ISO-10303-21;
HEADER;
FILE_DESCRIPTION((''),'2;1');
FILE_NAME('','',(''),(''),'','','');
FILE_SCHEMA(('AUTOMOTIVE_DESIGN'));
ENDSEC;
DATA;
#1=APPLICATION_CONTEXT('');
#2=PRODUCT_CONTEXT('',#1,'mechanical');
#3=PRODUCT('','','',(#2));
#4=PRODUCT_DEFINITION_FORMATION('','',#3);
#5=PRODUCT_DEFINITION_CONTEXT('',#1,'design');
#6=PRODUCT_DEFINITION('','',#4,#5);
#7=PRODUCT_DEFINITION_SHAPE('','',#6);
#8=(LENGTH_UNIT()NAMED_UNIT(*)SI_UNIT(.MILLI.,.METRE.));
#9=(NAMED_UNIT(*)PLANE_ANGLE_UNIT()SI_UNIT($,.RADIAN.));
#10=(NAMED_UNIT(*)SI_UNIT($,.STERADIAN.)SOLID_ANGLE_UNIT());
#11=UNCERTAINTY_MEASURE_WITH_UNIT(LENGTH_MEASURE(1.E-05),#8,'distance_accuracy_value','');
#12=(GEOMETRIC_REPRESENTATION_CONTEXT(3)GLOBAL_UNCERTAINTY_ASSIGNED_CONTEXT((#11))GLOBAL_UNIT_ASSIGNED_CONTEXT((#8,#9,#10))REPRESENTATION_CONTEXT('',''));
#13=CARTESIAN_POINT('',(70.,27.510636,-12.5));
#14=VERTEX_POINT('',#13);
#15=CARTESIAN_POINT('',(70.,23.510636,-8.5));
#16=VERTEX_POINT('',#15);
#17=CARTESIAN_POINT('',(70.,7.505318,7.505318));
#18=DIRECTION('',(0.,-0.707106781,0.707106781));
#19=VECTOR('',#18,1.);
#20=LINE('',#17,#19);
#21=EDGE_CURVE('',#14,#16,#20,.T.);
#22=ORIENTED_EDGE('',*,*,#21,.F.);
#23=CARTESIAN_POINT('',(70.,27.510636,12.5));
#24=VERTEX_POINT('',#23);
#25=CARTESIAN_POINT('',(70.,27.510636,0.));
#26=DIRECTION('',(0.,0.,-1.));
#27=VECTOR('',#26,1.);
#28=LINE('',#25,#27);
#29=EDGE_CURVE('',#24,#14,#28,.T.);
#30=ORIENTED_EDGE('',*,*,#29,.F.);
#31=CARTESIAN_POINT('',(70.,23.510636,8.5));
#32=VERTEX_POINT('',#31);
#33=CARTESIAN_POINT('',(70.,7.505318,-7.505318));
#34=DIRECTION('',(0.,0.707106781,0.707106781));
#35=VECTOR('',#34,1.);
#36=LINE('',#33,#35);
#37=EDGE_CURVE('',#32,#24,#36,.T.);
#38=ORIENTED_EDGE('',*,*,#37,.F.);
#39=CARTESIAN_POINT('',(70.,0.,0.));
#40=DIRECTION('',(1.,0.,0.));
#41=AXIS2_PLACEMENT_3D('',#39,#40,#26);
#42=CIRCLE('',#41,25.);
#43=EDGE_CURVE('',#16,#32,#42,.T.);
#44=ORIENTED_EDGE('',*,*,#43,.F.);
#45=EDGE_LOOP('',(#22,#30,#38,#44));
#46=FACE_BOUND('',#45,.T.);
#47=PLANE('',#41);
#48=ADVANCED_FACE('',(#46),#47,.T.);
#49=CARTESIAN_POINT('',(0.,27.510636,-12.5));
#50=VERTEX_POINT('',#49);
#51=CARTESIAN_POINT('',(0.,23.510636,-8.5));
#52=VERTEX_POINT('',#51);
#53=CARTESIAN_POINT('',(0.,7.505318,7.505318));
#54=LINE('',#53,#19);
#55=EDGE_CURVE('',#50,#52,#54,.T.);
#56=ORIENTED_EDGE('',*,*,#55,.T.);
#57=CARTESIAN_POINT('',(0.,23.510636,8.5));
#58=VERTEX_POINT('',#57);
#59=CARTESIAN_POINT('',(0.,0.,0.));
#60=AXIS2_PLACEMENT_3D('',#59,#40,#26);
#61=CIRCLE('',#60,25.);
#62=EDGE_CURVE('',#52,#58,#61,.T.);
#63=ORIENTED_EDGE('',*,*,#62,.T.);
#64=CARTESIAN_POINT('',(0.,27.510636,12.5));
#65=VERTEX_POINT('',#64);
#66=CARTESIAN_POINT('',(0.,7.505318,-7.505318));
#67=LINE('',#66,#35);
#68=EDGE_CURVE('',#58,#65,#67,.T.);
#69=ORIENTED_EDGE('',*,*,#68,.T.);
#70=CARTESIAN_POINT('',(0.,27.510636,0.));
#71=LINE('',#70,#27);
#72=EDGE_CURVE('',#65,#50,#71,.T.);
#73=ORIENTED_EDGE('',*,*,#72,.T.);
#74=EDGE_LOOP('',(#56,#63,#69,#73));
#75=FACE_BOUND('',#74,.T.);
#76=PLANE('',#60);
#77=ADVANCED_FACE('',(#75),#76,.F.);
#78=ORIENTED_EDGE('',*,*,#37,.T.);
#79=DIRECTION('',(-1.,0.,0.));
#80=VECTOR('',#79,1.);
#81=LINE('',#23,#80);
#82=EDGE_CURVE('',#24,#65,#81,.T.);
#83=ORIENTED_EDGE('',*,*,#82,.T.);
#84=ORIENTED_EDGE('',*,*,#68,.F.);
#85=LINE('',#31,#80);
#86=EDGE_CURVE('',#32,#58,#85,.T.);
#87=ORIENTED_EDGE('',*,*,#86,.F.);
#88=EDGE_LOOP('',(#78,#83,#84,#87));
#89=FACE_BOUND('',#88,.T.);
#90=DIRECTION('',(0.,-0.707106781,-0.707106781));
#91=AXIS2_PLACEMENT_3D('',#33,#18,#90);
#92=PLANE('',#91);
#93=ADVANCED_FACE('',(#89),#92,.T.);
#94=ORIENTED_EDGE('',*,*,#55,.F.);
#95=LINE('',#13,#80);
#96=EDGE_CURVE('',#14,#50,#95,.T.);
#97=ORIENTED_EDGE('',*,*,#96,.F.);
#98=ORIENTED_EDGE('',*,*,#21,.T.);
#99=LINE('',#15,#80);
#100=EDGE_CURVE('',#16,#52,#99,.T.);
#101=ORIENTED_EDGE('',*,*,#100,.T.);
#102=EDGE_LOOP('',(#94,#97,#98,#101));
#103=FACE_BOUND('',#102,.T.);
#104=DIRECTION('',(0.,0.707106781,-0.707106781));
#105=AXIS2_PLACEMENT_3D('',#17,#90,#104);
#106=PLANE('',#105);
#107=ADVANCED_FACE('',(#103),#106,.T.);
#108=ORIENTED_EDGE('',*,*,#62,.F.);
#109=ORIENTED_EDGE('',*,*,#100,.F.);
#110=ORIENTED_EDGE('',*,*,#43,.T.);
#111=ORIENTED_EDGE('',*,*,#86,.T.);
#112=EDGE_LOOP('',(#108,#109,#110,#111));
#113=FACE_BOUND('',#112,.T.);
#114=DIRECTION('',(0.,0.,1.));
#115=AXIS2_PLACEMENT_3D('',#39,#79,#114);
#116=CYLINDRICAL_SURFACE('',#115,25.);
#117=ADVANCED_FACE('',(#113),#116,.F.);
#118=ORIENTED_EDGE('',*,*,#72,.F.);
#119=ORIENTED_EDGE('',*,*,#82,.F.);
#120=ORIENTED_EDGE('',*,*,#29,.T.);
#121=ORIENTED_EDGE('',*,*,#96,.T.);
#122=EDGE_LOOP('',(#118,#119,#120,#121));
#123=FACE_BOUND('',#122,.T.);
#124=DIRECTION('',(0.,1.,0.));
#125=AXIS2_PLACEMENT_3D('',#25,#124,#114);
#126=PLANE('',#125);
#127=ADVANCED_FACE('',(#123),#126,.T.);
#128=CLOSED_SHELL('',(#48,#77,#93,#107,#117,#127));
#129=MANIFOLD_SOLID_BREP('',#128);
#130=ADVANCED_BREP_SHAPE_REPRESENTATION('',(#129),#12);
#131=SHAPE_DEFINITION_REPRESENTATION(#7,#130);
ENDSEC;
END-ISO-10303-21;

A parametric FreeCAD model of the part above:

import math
import FreeCAD as App
import Part
import Sketcher
from FreeCAD import Vector

doc = App.newDocument("Part")
params = doc.addObject("Spreadsheet::Sheet", "Params")
for row, (alias, value) in enumerate([
    ("sketch1_radius", "25 mm"),
    ("sketch1_height", "25 mm"),
    ("pad1_length", "70 mm"),
], start=1):
    params.set(f"A{row}", alias)
    params.set(f"B{row}", "=" + value)
    params.setAlias(f"B{row}", alias)

body = doc.addObject("PartDesign::Body", "Body")

sketch1 = doc.addObject("Sketcher::SketchObject", "Sketch")
body.addObject(sketch1)
sketch1.AttachmentSupport = (doc.YZ_Plane, [""])
sketch1.MapMode = "FlatFace"
sketch1.addGeometry([
    Part.LineSegment(Vector(28, 12, 0), Vector(24, 8, 0)),
    Part.ArcOfCircle(Part.Circle(Vector(0, 0, 0), Vector(0, 0, 1), 25), math.radians(-20), math.radians(20)),
    Part.LineSegment(Vector(24, -8, 0), Vector(28, -12, 0)),
    Part.LineSegment(Vector(28, -12, 0), Vector(28, 12, 0)),
], False)
sketch1.addConstraint([
    Sketcher.Constraint("Coincident", 0, 2, 1, 2),
    Sketcher.Constraint("Coincident", 1, 1, 2, 1),
    Sketcher.Constraint("Coincident", 2, 2, 3, 1),
    Sketcher.Constraint("Coincident", 3, 2, 0, 1),
    Sketcher.Constraint("Vertical", 3),
    Sketcher.Constraint("Coincident", 1, 3, -1, 1),
    Sketcher.Constraint("Perpendicular", 0, 2),
    Sketcher.Constraint("Vertical", 0, 2, 1, 1),
    Sketcher.Constraint("Equal", 0, 2),
    Sketcher.Constraint("Radius", 1, 25.0),
    Sketcher.Constraint("DistanceY", 3, 1, 3, 2, 25.0),
    Sketcher.Constraint("DistanceY", 1, 1, 0, 2, 17.0),
])
sketch1.setExpression("Constraints[9]", "Params.sketch1_radius")
sketch1.setExpression("Constraints[10]", "Params.sketch1_height")
pad1 = doc.addObject("PartDesign::Pad", "Pad")
body.addObject(pad1)
pad1.Profile = sketch1
pad1.setExpression("Length", "Params.pad1_length")

doc.recompute()
